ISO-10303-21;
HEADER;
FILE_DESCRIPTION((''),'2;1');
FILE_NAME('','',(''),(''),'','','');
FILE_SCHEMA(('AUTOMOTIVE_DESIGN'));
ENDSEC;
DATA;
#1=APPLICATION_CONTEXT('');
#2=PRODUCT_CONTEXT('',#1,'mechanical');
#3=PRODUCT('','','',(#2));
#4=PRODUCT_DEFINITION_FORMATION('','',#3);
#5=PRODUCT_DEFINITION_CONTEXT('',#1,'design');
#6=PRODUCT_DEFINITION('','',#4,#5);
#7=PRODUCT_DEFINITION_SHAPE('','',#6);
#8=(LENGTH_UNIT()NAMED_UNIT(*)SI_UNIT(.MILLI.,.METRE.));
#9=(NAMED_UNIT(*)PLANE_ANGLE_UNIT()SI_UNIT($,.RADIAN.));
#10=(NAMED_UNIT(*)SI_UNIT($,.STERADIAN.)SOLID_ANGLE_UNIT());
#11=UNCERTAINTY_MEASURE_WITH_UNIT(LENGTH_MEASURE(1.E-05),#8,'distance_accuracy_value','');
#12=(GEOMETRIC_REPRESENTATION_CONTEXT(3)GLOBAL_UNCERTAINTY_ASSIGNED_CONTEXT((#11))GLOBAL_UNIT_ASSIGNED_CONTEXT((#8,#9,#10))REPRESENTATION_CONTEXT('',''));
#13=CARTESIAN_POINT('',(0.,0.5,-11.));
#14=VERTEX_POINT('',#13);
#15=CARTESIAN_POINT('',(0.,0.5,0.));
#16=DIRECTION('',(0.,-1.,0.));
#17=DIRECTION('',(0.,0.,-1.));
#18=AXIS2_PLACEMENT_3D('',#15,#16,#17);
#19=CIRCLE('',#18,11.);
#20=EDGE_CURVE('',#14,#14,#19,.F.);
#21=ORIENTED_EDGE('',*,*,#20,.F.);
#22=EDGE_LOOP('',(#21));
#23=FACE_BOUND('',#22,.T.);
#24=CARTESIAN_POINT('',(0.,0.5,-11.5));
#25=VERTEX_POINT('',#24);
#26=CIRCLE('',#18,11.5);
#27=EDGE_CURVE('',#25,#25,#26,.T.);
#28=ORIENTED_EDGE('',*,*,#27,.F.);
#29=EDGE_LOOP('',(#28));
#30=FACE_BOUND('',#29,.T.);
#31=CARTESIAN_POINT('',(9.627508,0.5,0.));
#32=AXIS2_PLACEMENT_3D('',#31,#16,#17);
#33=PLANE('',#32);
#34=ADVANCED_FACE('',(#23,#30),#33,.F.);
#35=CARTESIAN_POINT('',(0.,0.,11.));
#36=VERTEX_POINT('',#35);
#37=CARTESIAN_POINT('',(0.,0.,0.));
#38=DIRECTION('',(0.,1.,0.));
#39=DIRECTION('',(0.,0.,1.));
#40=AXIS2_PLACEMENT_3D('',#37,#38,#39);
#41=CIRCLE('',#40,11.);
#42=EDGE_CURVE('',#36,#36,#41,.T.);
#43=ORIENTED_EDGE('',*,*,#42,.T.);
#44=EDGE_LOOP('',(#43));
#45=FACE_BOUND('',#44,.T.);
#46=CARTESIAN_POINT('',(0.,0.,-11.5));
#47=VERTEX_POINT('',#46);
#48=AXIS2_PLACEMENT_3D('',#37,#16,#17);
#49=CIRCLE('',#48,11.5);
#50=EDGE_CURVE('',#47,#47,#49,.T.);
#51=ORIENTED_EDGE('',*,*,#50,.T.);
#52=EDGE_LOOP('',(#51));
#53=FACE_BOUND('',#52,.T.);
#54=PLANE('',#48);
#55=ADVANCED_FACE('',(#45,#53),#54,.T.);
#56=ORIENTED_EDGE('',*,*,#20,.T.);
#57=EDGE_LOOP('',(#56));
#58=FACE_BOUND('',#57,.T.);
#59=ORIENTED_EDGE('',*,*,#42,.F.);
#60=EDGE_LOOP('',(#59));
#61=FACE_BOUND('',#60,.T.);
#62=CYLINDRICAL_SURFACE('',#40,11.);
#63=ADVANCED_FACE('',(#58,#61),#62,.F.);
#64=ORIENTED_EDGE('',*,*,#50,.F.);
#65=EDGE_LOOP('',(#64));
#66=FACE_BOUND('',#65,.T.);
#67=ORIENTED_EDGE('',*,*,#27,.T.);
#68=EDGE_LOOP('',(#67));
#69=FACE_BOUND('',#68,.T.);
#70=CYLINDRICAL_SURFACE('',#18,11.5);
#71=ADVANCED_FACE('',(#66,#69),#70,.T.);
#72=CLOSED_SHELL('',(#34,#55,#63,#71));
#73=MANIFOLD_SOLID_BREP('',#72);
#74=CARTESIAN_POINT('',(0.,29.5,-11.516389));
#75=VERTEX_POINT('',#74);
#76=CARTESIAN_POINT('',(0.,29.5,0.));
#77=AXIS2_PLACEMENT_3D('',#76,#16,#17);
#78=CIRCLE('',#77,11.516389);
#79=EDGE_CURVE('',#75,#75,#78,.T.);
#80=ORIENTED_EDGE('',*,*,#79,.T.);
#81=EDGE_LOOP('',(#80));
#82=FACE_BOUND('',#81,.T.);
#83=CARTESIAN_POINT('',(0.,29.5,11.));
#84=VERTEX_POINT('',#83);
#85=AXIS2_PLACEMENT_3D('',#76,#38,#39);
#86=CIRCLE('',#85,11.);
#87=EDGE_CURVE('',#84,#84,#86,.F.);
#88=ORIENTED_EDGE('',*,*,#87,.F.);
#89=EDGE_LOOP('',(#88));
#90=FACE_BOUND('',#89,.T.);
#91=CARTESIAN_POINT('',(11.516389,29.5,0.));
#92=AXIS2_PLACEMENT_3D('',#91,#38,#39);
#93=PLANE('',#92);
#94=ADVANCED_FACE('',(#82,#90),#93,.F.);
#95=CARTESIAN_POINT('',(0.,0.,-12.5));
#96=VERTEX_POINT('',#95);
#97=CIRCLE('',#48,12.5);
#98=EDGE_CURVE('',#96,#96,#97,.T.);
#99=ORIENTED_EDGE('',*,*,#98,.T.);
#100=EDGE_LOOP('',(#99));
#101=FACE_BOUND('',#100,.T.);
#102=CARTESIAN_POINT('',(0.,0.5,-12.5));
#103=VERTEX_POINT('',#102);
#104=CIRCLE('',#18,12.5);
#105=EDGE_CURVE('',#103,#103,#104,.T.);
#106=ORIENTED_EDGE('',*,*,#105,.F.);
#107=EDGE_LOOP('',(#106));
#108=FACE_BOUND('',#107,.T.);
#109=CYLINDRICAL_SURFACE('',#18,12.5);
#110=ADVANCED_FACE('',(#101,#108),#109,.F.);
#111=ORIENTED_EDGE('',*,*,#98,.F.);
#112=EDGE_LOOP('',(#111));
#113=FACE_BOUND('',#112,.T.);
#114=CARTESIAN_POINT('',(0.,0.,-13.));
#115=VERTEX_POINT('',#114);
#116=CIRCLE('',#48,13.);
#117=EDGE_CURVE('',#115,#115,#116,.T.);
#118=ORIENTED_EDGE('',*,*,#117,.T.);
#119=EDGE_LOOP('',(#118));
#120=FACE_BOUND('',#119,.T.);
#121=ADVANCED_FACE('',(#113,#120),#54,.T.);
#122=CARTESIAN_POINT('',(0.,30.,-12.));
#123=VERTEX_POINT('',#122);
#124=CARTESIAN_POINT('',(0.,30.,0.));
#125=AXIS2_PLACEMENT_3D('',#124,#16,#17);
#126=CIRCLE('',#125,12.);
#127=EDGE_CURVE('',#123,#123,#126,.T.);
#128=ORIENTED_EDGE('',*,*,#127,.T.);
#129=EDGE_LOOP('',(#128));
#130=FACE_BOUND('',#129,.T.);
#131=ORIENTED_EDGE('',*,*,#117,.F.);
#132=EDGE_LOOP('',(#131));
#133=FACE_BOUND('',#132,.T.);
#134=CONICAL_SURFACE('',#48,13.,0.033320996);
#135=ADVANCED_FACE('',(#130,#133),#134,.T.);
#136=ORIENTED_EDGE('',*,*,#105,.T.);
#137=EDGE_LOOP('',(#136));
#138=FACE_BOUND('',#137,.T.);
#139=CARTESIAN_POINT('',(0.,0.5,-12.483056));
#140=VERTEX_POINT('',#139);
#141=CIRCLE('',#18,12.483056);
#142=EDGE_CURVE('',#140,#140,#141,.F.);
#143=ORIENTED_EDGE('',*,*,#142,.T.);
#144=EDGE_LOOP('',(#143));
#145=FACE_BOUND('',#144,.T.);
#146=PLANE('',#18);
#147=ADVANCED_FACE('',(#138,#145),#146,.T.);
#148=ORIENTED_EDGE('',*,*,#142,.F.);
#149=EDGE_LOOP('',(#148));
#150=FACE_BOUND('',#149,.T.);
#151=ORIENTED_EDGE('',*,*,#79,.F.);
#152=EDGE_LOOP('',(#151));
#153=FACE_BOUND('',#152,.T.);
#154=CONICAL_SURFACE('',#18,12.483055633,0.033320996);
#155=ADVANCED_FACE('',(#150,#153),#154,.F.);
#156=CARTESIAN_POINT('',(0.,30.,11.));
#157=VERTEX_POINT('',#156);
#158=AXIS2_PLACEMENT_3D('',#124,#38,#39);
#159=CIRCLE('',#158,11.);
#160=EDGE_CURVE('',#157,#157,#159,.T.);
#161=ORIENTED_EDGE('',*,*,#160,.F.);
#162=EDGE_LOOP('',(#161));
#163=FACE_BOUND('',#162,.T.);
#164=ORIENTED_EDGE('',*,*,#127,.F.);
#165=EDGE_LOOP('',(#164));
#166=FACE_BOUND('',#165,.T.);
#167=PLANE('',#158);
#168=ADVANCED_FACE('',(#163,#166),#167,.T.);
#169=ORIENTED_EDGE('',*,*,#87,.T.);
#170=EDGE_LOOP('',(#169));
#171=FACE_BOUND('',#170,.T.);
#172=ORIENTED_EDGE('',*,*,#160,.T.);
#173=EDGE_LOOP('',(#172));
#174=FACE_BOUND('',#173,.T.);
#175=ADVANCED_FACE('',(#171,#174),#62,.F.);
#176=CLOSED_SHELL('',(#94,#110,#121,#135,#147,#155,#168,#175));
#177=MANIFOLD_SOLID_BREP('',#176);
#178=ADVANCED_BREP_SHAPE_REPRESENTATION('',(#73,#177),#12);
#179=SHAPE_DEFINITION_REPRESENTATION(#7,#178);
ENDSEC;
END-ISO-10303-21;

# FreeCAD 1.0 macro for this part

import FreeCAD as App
import Part
import Sketcher
from FreeCAD import Vector

doc = App.newDocument("Part")
params = doc.addObject("Spreadsheet::Sheet", "Params")
for row, (alias, value) in enumerate([
    ("sketch1_width", "13 mm"),
    ("sketch1_width2", "12 mm"),
    ("sketch1_height", "30 mm"),
    ("revolution_angle", "360 deg"),
    ("sketch2_diameter", "22 mm"),
    ("pocket1_length", "30 mm"),
    ("groove_angle", "360 deg"),
    ("sketch4_diameter", "25 mm"),
    ("sketch4_diameter2", "23 mm"),
    ("pocket2_length", "0.5 mm"),
], start=1):
    params.set(f"A{row}", alias)
    params.set(f"B{row}", "=" + value)
    params.setAlias(f"B{row}", alias)

body = doc.addObject("PartDesign::Body", "Body")
body.AllowCompound = True

sketch1 = body.newObject("Sketcher::SketchObject", "Sketch")
sketch1.AttachmentSupport = (doc.getObject("XY_Plane"), [""])
sketch1.MapMode = "FlatFace"
sketch1.addGeometry([
    Part.LineSegment(Vector(0, 0, 0), Vector(13, 0, 0)),
    Part.LineSegment(Vector(13, 0, 0), Vector(12, 30, 0)),
    Part.LineSegment(Vector(12, 30, 0), Vector(0, 30, 0)),
    Part.LineSegment(Vector(0, 30, 0), Vector(0, 0, 0)),
], False)
sketch1.addConstraint([
    Sketcher.Constraint("Coincident", 0, 2, 1, 1),
    Sketcher.Constraint("Coincident", 1, 2, 2, 1),
    Sketcher.Constraint("Coincident", 2, 2, 3, 1),
    Sketcher.Constraint("Coincident", 3, 2, 0, 1),
    Sketcher.Constraint("Horizontal", 0),
    Sketcher.Constraint("Horizontal", 2),
    Sketcher.Constraint("Vertical", 3),
    Sketcher.Constraint("Coincident", 3, 2, -1, 1),
    Sketcher.Constraint("DistanceX", 0, 1, 0, 2, 13.0),
    Sketcher.Constraint("DistanceX", 2, 2, 2, 1, 12.0),
    Sketcher.Constraint("DistanceY", 3, 2, 3, 1, 30.0),
])
sketch1.setExpression("Constraints[8]", "Params.sketch1_width")
sketch1.setExpression("Constraints[9]", "Params.sketch1_width2")
sketch1.setExpression("Constraints[10]", "Params.sketch1_height")
revolution = body.newObject("PartDesign::Revolution", "Revolution")
revolution.Profile = sketch1
revolution.ReferenceAxis = (sketch1, ["V_Axis"])
revolution.setExpression("Angle", "Params.revolution_angle")

sketch2 = body.newObject("Sketcher::SketchObject", "Sketch001")
sketch2.AttachmentSupport = (doc.getObject("XZ_Plane"), [""])
sketch2.MapMode = "FlatFace"
sketch2.AttachmentOffset = App.Placement(Vector(0, 0, -30), App.Rotation())
sketch2.addGeometry(Part.Circle(Vector(0, 0, 0), Vector(0, 0, 1), 11), False)
sketch2.addConstraint([
    Sketcher.Constraint("Coincident", 0, 3, -1, 1),
    Sketcher.Constraint("Diameter", 0, 22.0),
])
sketch2.setExpression("Constraints[1]", "Params.sketch2_diameter")
pocket1 = body.newObject("PartDesign::Pocket", "Pocket")
pocket1.Profile = sketch2
pocket1.setExpression("Length", "Params.pocket1_length")
pocket1.Reversed = True

sketch3 = body.newObject("Sketcher::SketchObject", "Sketch002")
sketch3.AttachmentSupport = (doc.getObject("XY_Plane"), [""])
sketch3.MapMode = "FlatFace"
sketch3.addGeometry([
    Part.LineSegment(Vector(9, 29.5, 0), Vector(9.6, 0.5, 0)),
    Part.LineSegment(Vector(9.6, 0.5, 0), Vector(12.5, 0.5, 0)),
    Part.LineSegment(Vector(12.5, 0.5, 0), Vector(11.5, 29.5, 0)),
    Part.LineSegment(Vector(11.5, 29.5, 0), Vector(9, 29.5, 0)),
], False)
sketch3.addConstraint([
    Sketcher.Constraint("Coincident", 0, 2, 1, 1),
    Sketcher.Constraint("Coincident", 1, 2, 2, 1),
    Sketcher.Constraint("Coincident", 2, 2, 3, 1),
    Sketcher.Constraint("Coincident", 3, 2, 0, 1),
    Sketcher.Constraint("Horizontal", 1),
    Sketcher.Constraint("Horizontal", 3),
    Sketcher.Constraint("DistanceY", 1, 2, 2, 2, 29.0),
    Sketcher.Constraint("DistanceY", -1, 1, 0, 2, 0.5),
    Sketcher.Constraint("DistanceX", 1, 1, 1, 2, 2.855548),
    Sketcher.Constraint("DistanceX", 3, 2, 3, 1, 2.530789),
    Sketcher.Constraint("DistanceX", -1, 1, 3, 2, 8.9856),
    Sketcher.Constraint("DistanceX", 0, 2, 2, 2, 1.888881),
])
groove = body.newObject("PartDesign::Groove", "Groove")
groove.Profile = sketch3
groove.ReferenceAxis = (sketch3, ["V_Axis"])
groove.setExpression("Angle", "Params.groove_angle")

sketch4 = body.newObject("Sketcher::SketchObject", "Sketch003")
sketch4.AttachmentSupport = (doc.getObject("XZ_Plane"), [""])
sketch4.MapMode = "FlatFace"
sketch4.addGeometry([
    Part.Circle(Vector(0, 0, 0), Vector(0, 0, 1), 12),
    Part.Circle(Vector(0, 0, 0), Vector(0, 0, 1), 12),
], False)
sketch4.addConstraint([
    Sketcher.Constraint("Coincident", 0, 3, -1, 1),
    Sketcher.Constraint("Coincident", 1, 3, -1, 1),
    Sketcher.Constraint("Diameter", 0, 25.0),
    Sketcher.Constraint("Diameter", 1, 23.0),
])
sketch4.setExpression("Constraints[2]", "Params.sketch4_diameter")
sketch4.setExpression("Constraints[3]", "Params.sketch4_diameter2")
pocket2 = body.newObject("PartDesign::Pocket", "Pocket001")
pocket2.Profile = sketch4
pocket2.setExpression("Length", "Params.pocket2_length")

doc.recompute()
